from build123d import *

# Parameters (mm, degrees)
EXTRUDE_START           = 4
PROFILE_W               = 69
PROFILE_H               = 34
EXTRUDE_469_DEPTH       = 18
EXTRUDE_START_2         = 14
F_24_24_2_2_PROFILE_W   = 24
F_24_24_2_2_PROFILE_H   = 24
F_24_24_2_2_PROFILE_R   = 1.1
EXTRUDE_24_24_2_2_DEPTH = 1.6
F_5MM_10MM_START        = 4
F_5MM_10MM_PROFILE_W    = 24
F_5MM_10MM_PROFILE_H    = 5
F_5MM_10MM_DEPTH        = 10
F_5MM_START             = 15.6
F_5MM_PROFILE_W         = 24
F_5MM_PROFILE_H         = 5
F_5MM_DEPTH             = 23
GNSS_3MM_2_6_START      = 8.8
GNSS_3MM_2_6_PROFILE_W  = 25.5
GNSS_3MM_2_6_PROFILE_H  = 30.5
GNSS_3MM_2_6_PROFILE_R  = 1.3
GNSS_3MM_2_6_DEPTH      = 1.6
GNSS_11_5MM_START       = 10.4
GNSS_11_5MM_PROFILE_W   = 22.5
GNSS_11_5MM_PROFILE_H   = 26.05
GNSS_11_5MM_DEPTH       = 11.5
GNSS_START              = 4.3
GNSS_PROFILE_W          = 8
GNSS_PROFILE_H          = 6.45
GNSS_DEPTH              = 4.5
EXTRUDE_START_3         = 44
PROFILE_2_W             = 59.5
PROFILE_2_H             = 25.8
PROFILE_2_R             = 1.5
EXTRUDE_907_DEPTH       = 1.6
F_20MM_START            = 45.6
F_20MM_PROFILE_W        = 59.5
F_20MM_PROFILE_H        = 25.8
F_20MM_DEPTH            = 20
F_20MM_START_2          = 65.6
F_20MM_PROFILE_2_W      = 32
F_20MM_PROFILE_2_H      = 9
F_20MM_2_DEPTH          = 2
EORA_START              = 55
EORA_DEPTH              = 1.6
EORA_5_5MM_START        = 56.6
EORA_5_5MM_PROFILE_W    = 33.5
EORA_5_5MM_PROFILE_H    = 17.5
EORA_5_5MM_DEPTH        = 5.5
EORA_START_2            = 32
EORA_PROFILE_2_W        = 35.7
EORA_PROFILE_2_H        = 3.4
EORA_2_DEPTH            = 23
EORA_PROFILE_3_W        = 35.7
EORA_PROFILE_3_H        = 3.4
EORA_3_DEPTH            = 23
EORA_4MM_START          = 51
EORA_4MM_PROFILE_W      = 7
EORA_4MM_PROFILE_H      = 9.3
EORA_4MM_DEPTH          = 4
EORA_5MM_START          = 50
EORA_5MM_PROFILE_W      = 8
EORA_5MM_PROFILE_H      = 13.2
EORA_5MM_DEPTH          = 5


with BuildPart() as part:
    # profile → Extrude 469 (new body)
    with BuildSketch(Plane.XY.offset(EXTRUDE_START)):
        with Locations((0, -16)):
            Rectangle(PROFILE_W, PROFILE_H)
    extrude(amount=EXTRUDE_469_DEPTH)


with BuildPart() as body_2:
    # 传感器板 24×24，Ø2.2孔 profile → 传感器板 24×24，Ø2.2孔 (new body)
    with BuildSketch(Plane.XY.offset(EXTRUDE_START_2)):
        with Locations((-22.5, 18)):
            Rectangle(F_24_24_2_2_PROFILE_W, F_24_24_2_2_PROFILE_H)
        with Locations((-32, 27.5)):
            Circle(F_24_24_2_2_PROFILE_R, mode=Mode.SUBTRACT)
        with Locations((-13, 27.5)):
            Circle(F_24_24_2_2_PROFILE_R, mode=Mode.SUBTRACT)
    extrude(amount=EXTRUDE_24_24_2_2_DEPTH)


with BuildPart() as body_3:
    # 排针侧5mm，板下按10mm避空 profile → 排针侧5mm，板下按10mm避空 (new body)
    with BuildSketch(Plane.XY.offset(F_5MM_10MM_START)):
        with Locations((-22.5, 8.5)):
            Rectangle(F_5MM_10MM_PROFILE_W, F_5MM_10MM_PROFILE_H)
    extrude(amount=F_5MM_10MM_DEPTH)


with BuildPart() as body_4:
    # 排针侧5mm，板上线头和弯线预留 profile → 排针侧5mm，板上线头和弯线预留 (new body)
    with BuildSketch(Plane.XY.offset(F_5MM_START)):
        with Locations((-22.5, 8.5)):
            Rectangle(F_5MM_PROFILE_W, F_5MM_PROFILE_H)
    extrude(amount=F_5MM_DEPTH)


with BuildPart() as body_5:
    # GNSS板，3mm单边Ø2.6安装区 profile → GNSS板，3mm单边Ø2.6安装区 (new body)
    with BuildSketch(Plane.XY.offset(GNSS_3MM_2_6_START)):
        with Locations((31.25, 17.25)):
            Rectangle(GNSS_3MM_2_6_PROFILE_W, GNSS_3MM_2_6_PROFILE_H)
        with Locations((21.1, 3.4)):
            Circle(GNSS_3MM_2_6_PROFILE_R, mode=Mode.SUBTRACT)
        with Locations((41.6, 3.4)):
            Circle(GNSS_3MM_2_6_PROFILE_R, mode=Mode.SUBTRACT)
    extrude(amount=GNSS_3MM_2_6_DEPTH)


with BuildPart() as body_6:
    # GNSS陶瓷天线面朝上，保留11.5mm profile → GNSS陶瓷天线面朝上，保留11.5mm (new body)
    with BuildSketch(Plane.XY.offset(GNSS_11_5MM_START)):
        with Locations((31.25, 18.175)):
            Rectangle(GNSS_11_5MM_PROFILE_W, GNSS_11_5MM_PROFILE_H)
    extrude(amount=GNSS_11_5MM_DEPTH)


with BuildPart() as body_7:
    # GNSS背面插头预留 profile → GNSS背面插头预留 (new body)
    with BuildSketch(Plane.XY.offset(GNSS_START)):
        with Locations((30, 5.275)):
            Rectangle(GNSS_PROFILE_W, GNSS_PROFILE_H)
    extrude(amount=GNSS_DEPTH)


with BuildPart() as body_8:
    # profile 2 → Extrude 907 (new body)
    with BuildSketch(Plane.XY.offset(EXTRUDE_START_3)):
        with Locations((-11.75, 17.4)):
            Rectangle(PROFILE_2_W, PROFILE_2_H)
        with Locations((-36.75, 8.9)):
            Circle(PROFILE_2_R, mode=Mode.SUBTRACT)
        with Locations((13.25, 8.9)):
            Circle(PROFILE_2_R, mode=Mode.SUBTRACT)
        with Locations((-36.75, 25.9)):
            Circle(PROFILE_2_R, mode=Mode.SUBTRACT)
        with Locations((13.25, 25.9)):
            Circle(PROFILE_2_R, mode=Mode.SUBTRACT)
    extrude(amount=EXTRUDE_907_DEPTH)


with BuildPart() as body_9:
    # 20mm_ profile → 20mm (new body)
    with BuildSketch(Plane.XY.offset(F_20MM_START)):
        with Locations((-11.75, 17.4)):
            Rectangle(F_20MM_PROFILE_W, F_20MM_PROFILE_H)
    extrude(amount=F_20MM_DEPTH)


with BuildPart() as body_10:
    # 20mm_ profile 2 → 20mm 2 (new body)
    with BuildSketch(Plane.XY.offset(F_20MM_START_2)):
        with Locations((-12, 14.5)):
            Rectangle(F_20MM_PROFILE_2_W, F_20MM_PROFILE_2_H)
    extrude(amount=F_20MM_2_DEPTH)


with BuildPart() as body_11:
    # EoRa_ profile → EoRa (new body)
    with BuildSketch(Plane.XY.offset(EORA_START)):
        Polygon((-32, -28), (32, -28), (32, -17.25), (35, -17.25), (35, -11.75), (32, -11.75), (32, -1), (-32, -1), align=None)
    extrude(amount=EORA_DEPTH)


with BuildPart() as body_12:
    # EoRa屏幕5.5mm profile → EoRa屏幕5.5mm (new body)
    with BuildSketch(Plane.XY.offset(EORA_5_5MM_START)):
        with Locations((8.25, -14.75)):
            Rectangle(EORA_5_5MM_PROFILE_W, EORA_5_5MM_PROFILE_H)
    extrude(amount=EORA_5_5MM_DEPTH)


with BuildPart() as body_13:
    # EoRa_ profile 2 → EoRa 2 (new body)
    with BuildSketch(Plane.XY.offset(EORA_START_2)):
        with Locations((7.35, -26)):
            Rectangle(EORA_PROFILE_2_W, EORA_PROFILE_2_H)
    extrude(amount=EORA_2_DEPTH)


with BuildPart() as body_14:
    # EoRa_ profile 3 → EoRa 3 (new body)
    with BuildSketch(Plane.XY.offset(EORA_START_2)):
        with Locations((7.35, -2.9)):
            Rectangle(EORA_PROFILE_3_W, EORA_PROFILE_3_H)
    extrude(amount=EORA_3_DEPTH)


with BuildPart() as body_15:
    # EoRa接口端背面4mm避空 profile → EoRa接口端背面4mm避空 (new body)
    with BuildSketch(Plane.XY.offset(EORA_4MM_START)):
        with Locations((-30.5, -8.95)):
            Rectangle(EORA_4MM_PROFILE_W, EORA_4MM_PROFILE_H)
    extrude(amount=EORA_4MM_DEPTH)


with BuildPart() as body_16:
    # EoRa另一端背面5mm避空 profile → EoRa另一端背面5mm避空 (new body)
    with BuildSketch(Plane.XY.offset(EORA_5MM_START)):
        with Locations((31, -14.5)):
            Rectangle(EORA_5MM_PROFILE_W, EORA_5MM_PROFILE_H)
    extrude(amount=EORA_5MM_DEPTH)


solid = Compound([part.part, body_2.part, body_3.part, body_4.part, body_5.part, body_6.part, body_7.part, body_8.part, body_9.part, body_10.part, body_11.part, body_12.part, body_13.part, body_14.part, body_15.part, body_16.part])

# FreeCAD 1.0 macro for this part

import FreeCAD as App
import Part
import Sketcher

V = App.Vector


def add_polygon(sketch, points):
    """Adds a closed chain of lines whose ends are joined by coincident constraints."""
    first, n = sketch.GeometryCount, len(points)
    for a, b in zip(points, points[1:] + points[:1]):
        sketch.addGeometry(Part.LineSegment(App.Vector(*a, 0), App.Vector(*b, 0)), False)
    for i in range(n):
        sketch.addConstraint(Sketcher.Constraint("Coincident", first + i, 2, first + (i + 1) % n, 1))

doc = App.newDocument("Part")
body = doc.addObject("PartDesign::Body", "Body")

sketch1 = doc.addObject("Sketcher::SketchObject", "Sketch")
body.addObject(sketch1)
sketch1.AttachmentSupport = (doc.XY_Plane, [""])
sketch1.MapMode = "FlatFace"
sketch1.AttachmentOffset = App.Placement(V(0, 0, 4), App.Rotation())
add_polygon(sketch1, [(-34.5, 1), (-34.5, -33), (34.5, -33), (34.5, 1)])
sketch1.addConstraint([
    Sketcher.Constraint("Vertical", 0),
    Sketcher.Constraint("Horizontal", 1),
    Sketcher.Constraint("Vertical", 2),
    Sketcher.Constraint("Horizontal", 3),
    Sketcher.Constraint("DistanceX", 1, 1, 1, 2, 69.0),
    Sketcher.Constraint("DistanceY", 0, 2, 0, 1, 34.0),
    Sketcher.Constraint("DistanceY", 0, 2, -1, 1, 33.0),
    Sketcher.Constraint("DistanceX", 0, 2, -1, 1, 34.5),
])
pad1 = doc.addObject("PartDesign::Pad", "Pad")
body.addObject(pad1)
pad1.Profile = sketch1
pad1.Length = 18
body2 = doc.addObject("PartDesign::Body", "Body001")

sketch2 = doc.addObject("Sketcher::SketchObject", "Sketch001")
body2.addObject(sketch2)
sketch2.AttachmentSupport = (doc.getObject("XY_Plane001"), [""])
sketch2.MapMode = "FlatFace"
sketch2.AttachmentOffset = App.Placement(V(0, 0, 14), App.Rotation())
add_polygon(sketch2, [(-34.5, 30), (-34.5, 6), (-10.5, 6), (-10.5, 30)])
sketch2.addGeometry(Part.Circle(V(-32, 27.5, 0), V(0, 0, 1), 1.1), False)
sketch2.addGeometry(Part.Circle(V(-13, 27.5, 0), V(0, 0, 1), 1.1), False)
sketch2.addConstraint([
    Sketcher.Constraint("Vertical", 0),
    Sketcher.Constraint("Horizontal", 1),
    Sketcher.Constraint("Vertical", 2),
    Sketcher.Constraint("Horizontal", 3),
    Sketcher.Constraint("Equal", 4, 5),
    Sketcher.Constraint("Horizontal", 4, 3, 5, 3),
    Sketcher.Constraint("Equal", 3, 0),
    Sketcher.Constraint("Diameter", 4, 2.2),
    Sketcher.Constraint("DistanceX", 1, 1, 1, 2, 24.0),
    Sketcher.Constraint("DistanceX", 4, 3, -1, 1, 32.0),
    Sketcher.Constraint("DistanceX", 5, 3, -1, 1, 13.0),
    Sketcher.Constraint("DistanceY", -1, 1, 0, 2, 6.0),
    Sketcher.Constraint("DistanceY", -1, 1, 4, 3, 27.5),
    Sketcher.Constraint("DistanceX", 0, 2, -1, 1, 34.5),
])
pad2 = doc.addObject("PartDesign::Pad", "Pad001")
body2.addObject(pad2)
pad2.Profile = sketch2
pad2.Length = 1.6
body3 = doc.addObject("PartDesign::Body", "Body002")

sketch3 = doc.addObject("Sketcher::SketchObject", "Sketch002")
body3.addObject(sketch3)
sketch3.AttachmentSupport = (doc.getObject("XY_Plane002"), [""])
sketch3.MapMode = "FlatFace"
sketch3.AttachmentOffset = App.Placement(V(0, 0, 4), App.Rotation())
add_polygon(sketch3, [(-34.5, 11), (-34.5, 6), (-10.5, 6), (-10.5, 11)])
sketch3.addConstraint([
    Sketcher.Constraint("Vertical", 0),
    Sketcher.Constraint("Horizontal", 1),
    Sketcher.Constraint("Vertical", 2),
    Sketcher.Constraint("Horizontal", 3),
    Sketcher.Constraint("DistanceX", 1, 1, 1, 2, 24.0),
    Sketcher.Constraint("DistanceY", 0, 2, 0, 1, 5.0),
    Sketcher.Constraint("DistanceY", -1, 1, 0, 2, 6.0),
    Sketcher.Constraint("DistanceX", 0, 2, -1, 1, 34.5),
])
pad3 = doc.addObject("PartDesign::Pad", "Pad002")
body3.addObject(pad3)
pad3.Profile = sketch3
pad3.Length = 10
body4 = doc.addObject("PartDesign::Body", "Body003")

sketch4 = doc.addObject("Sketcher::SketchObject", "Sketch003")
body4.addObject(sketch4)
sketch4.AttachmentSupport = (doc.getObject("XY_Plane003"), [""])
sketch4.MapMode = "FlatFace"
sketch4.AttachmentOffset = App.Placement(V(0, 0, 15.6), App.Rotation())
add_polygon(sketch4, [(-34.5, 11), (-34.5, 6), (-10.5, 6), (-10.5, 11)])
sketch4.addConstraint([
    Sketcher.Constraint("Vertical", 0),
    Sketcher.Constraint("Horizontal", 1),
    Sketcher.Constraint("Vertical", 2),
    Sketcher.Constraint("Horizontal", 3),
    Sketcher.Constraint("DistanceX", 1, 1, 1, 2, 24.0),
    Sketcher.Constraint("DistanceY", 0, 2, 0, 1, 5.0),
    Sketcher.Constraint("DistanceY", -1, 1, 0, 2, 6.0),
    Sketcher.Constraint("DistanceX", 0, 2, -1, 1, 34.5),
])
pad4 = doc.addObject("PartDesign::Pad", "Pad003")
body4.addObject(pad4)
pad4.Profile = sketch4
pad4.Length = 23
body5 = doc.addObject("PartDesign::Body", "Body004")

sketch5 = doc.addObject("Sketcher::SketchObject", "Sketch004")
body5.addObject(sketch5)
sketch5.AttachmentSupport = (doc.getObject("XY_Plane004"), [""])
sketch5.MapMode = "FlatFace"
sketch5.AttachmentOffset = App.Placement(V(0, 0, 8.8), App.Rotation())
add_polygon(sketch5, [(18.5, 32.5), (18.5, 2), (44, 2), (44, 32.5)])
sketch5.addGeometry(Part.Circle(V(21.1, 3.4, 0), V(0, 0, 1), 1.3), False)
sketch5.addGeometry(Part.Circle(V(41.6, 3.4, 0), V(0, 0, 1), 1.3), False)
sketch5.addConstraint([
    Sketcher.Constraint("Vertical", 0),
    Sketcher.Constraint("Horizontal", 1),
    Sketcher.Constraint("Vertical", 2),
    Sketcher.Constraint("Horizontal", 3),
    Sketcher.Constraint("Equal", 4, 5),
    Sketcher.Constraint("Horizontal", 4, 3, 5, 3),
    Sketcher.Constraint("Diameter", 4, 2.6),
    Sketcher.Constraint("DistanceX", 1, 1, 1, 2, 25.5),
    Sketcher.Constraint("DistanceY", 0, 2, 0, 1, 30.5),
    Sketcher.Constraint("DistanceY", -1, 1, 0, 2, 2.0),
    Sketcher.Constraint("DistanceX", -1, 1, 1, 2, 44.0),
    Sketcher.Constraint("DistanceX", -1, 1, 4, 3, 21.1),
    Sketcher.Constraint("DistanceY", -1, 1, 4, 3, 3.4),
    Sketcher.Constraint("DistanceX", -1, 1, 5, 3, 41.6),
])
pad5 = doc.addObject("PartDesign::Pad", "Pad004")
body5.addObject(pad5)
pad5.Profile = sketch5
pad5.Length = 1.6
body6 = doc.addObject("PartDesign::Body", "Body005")

sketch6 = doc.addObject("Sketcher::SketchObject", "Sketch005")
body6.addObject(sketch6)
sketch6.AttachmentSupport = (doc.getObject("XY_Plane005"), [""])
sketch6.MapMode = "FlatFace"
sketch6.AttachmentOffset = App.Placement(V(0, 0, 10.4), App.Rotation())
add_polygon(sketch6, [(20, 31.2), (20, 5.15), (42.5, 5.15), (42.5, 31.2)])
sketch6.addConstraint([
    Sketcher.Constraint("Vertical", 0),
    Sketcher.Constraint("Horizontal", 1),
    Sketcher.Constraint("Vertical", 2),
    Sketcher.Constraint("Horizontal", 3),
    Sketcher.Constraint("DistanceX", 1, 1, 1, 2, 22.5),
    Sketcher.Constraint("DistanceX", -1, 1, 0, 2, 20.0),
    Sketcher.Constraint("DistanceY", 0, 2, 0, 1, 26.05),
    Sketcher.Constraint("DistanceY", -1, 1, 2, 2, 31.2),
])
pad6 = doc.addObject("PartDesign::Pad", "Pad005")
body6.addObject(pad6)
pad6.Profile = sketch6
pad6.Length = 11.5
body7 = doc.addObject("PartDesign::Body", "Body006")

sketch7 = doc.addObject("Sketcher::SketchObject", "Sketch006")
body7.addObject(sketch7)
sketch7.AttachmentSupport = (doc.getObject("XY_Plane006"), [""])
sketch7.MapMode = "FlatFace"
sketch7.AttachmentOffset = App.Placement(V(0, 0, 4.3), App.Rotation())
add_polygon(sketch7, [(26, 8.5), (26, 2.05), (34, 2.05), (34, 8.5)])
sketch7.addConstraint([
    Sketcher.Constraint("Vertical", 0),
    Sketcher.Constraint("Horizontal", 1),
    Sketcher.Constraint("Vertical", 2),
    Sketcher.Constraint("Horizontal", 3),
    Sketcher.Constraint("DistanceX", 1, 1, 1, 2, 8.0),
    Sketcher.Constraint("DistanceX", -1, 1, 0, 2, 26.0),
    Sketcher.Constraint("DistanceY", 0, 2, 0, 1, 6.45),
    Sketcher.Constraint("DistanceY", -1, 1, 2, 2, 8.5),
])
pad7 = doc.addObject("PartDesign::Pad", "Pad006")
body7.addObject(pad7)
pad7.Profile = sketch7
pad7.Length = 4.5
body8 = doc.addObject("PartDesign::Body", "Body007")

sketch8 = doc.addObject("Sketcher::SketchObject", "Sketch007")
body8.addObject(sketch8)
sketch8.AttachmentSupport = (doc.getObject("XY_Plane007"), [""])
sketch8.MapMode = "FlatFace"
sketch8.AttachmentOffset = App.Placement(V(0, 0, 44), App.Rotation())
add_polygon(sketch8, [(-41.5, 30.3), (-41.5, 4.5), (18, 4.5), (18, 30.3)])
sketch8.addGeometry(Part.Circle(V(-36.75, 8.9, 0), V(0, 0, 1), 1.5), False)
sketch8.addGeometry(Part.Circle(V(13.25, 8.9, 0), V(0, 0, 1), 1.5), False)
sketch8.addGeometry(Part.Circle(V(-36.75, 25.9, 0), V(0, 0, 1), 1.5), False)
sketch8.addGeometry(Part.Circle(V(13.25, 25.9, 0), V(0, 0, 1), 1.5), False)
sketch8.addConstraint([
    Sketcher.Constraint("Vertical", 0),
    Sketcher.Constraint("Horizontal", 1),
    Sketcher.Constraint("Vertical", 2),
    Sketcher.Constraint("Horizontal", 3),
    Sketcher.Constraint("Equal", 4, 5),
    Sketcher.Constraint("Equal", 5, 6),
    Sketcher.Constraint("Equal", 6, 7),
    Sketcher.Constraint("Horizontal", 4, 3, 5, 3),
    Sketcher.Constraint("Horizontal", 6, 3, 7, 3),
    Sketcher.Constraint("Vertical", 4, 3, 6, 3),
    Sketcher.Constraint("Vertical", 5, 3, 7, 3),
    Sketcher.Constraint("Diameter", 4, 3.0),
    Sketcher.Constraint("DistanceX", 1, 1, 1, 2, 59.5),
    Sketcher.Constraint("DistanceY", 0, 2, 0, 1, 25.8),
    Sketcher.Constraint("DistanceX", -1, 1, 1, 2, 18.0),
    Sketcher.Constraint("DistanceX", 4, 3, 5, 3, 50.0),
    Sketcher.Constraint("DistanceY", 4, 3, 6, 3, 17.0),
    Sketcher.Constraint("DistanceY", -1, 1, 4, 3, 8.9),
    Sketcher.Constraint("DistanceY", -1, 1, 0, 2, 4.5),
    Sketcher.Constraint("DistanceX", 4, 3, -1, 1, 36.75),
])
pad8 = doc.addObject("PartDesign::Pad", "Pad007")
body8.addObject(pad8)
pad8.Profile = sketch8
pad8.Length = 1.6
body9 = doc.addObject("PartDesign::Body", "Body008")

sketch9 = doc.addObject("Sketcher::SketchObject", "Sketch008")
body9.addObject(sketch9)
sketch9.AttachmentSupport = (doc.getObject("XY_Plane008"), [""])
sketch9.MapMode = "FlatFace"
sketch9.AttachmentOffset = App.Placement(V(0, 0, 45.6), App.Rotation())
add_polygon(sketch9, [(-41.5, 30.3), (-41.5, 4.5), (18, 4.5), (18, 30.3)])
sketch9.addConstraint([
    Sketcher.Constraint("Vertical", 0),
    Sketcher.Constraint("Horizontal", 1),
    Sketcher.Constraint("Vertical", 2),
    Sketcher.Constraint("Horizontal", 3),
    Sketcher.Constraint("DistanceX", 1, 1, 1, 2, 59.5),
    Sketcher.Constraint("DistanceY", 0, 2, 0, 1, 25.8),
    Sketcher.Constraint("DistanceX", -1, 1, 1, 2, 18.0),
    Sketcher.Constraint("DistanceY", -1, 1, 0, 2, 4.5),
])
pad9 = doc.addObject("PartDesign::Pad", "Pad008")
body9.addObject(pad9)
pad9.Profile = sketch9
pad9.Length = 20
body10 = doc.addObject("PartDesign::Body", "Body009")

sketch10 = doc.addObject("Sketcher::SketchObject", "Sketch009")
body10.addObject(sketch10)
sketch10.AttachmentSupport = (doc.getObject("XY_Plane009"), [""])
sketch10.MapMode = "FlatFace"
sketch10.AttachmentOffset = App.Placement(V(0, 0, 65.6), App.Rotation())
add_polygon(sketch10, [(-28, 19), (-28, 10), (4, 10), (4, 19)])
sketch10.addConstraint([
    Sketcher.Constraint("Vertical", 0),
    Sketcher.Constraint("Horizontal", 1),
    Sketcher.Constraint("Vertical", 2),
    Sketcher.Constraint("Horizontal", 3),
    Sketcher.Constraint("DistanceX", 1, 1, 1, 2, 32.0),
    Sketcher.Constraint("DistanceY", 0, 2, 0, 1, 9.0),
    Sketcher.Constraint("DistanceX", 0, 2, -1, 1, 28.0),
    Sketcher.Constraint("DistanceY", -1, 1, 0, 2, 10.0),
])
pad10 = doc.addObject("PartDesign::Pad", "Pad009")
body10.addObject(pad10)
pad10.Profile = sketch10
pad10.Length = 2
body11 = doc.addObject("PartDesign::Body", "Body010")

sketch11 = doc.addObject("Sketcher::SketchObject", "Sketch010")
body11.addObject(sketch11)
sketch11.AttachmentSupport = (doc.getObject("XY_Plane010"), [""])
sketch11.MapMode = "FlatFace"
sketch11.AttachmentOffset = App.Placement(V(0, 0, 55), App.Rotation())
add_polygon(sketch11, [(-32, -28), (32, -28), (32, -17.25), (35, -17.25), (35, -11.75), (32, -11.75), (32, -1), (-32, -1)])
sketch11.addConstraint([
    Sketcher.Constraint("Horizontal", 0),
    Sketcher.Constraint("Vertical", 1),
    Sketcher.Constraint("Horizontal", 2),
    Sketcher.Constraint("Vertical", 3),
    Sketcher.Constraint("Horizontal", 4),
    Sketcher.Constraint("Vertical", 5),
    Sketcher.Constraint("Horizontal", 6),
    Sketcher.Constraint("Vertical", 7),
    Sketcher.Constraint("Vertical", 1, 2, 4, 2),
    Sketcher.Constraint("Equal", 1, 5),
    Sketcher.Constraint("DistanceX", 0, 1, 0, 2, 64.0),
    Sketcher.Constraint("DistanceX", 2, 1, 2, 2, 3.0),
    Sketcher.Constraint("DistanceY", 7, 2, 7, 1, 27.0),
    Sketcher.Constraint("DistanceY", 3, 1, 3, 2, 5.5),
    Sketcher.Constraint("DistanceX", -1, 1, 0, 2, 32.0),
    Sketcher.Constraint("DistanceY", 0, 2, -1, 1, 28.0),
])
pad11 = doc.addObject("PartDesign::Pad", "Pad010")
body11.addObject(pad11)
pad11.Profile = sketch11
pad11.Length = 1.6
body12 = doc.addObject("PartDesign::Body", "Body011")

sketch12 = doc.addObject("Sketcher::SketchObject", "Sketch011")
body12.addObject(sketch12)
sketch12.AttachmentSupport = (doc.getObject("XY_Plane011"), [""])
sketch12.MapMode = "FlatFace"
sketch12.AttachmentOffset = App.Placement(V(0, 0, 56.6), App.Rotation())
add_polygon(sketch12, [(-8.5, -6), (-8.5, -23.5), (25, -23.5), (25, -6)])
sketch12.addConstraint([
    Sketcher.Constraint("Vertical", 0),
    Sketcher.Constraint("Horizontal", 1),
    Sketcher.Constraint("Vertical", 2),
    Sketcher.Constraint("Horizontal", 3),
    Sketcher.Constraint("DistanceX", 1, 1, 1, 2, 33.5),
    Sketcher.Constraint("DistanceY", 0, 2, 0, 1, 17.5),
    Sketcher.Constraint("DistanceX", -1, 1, 1, 2, 25.0),
    Sketcher.Constraint("DistanceY", 2, 2, -1, 1, 6.0),
])
pad12 = doc.addObject("PartDesign::Pad", "Pad011")
body12.addObject(pad12)
pad12.Profile = sketch12
pad12.Length = 5.5
body13 = doc.addObject("PartDesign::Body", "Body012")

sketch13 = doc.addObject("Sketcher::SketchObject", "Sketch012")
body13.addObject(sketch13)
sketch13.AttachmentSupport = (doc.getObject("XY_Plane012"), [""])
sketch13.MapMode = "FlatFace"
sketch13.AttachmentOffset = App.Placement(V(0, 0, 32), App.Rotation())
add_polygon(sketch13, [(-10.5, -24.3), (-10.5, -27.7), (25.2, -27.7), (25.2, -24.3)])
sketch13.addConstraint([
    Sketcher.Constraint("Vertical", 0),
    Sketcher.Constraint("Horizontal", 1),
    Sketcher.Constraint("Vertical", 2),
    Sketcher.Constraint("Horizontal", 3),
    Sketcher.Constraint("DistanceX", 1, 1, 1, 2, 35.7),
    Sketcher.Constraint("DistanceY", 0, 2, 0, 1, 3.4),
    Sketcher.Constraint("DistanceX", 0, 2, -1, 1, 10.5),
    Sketcher.Constraint("DistanceY", 0, 2, -1, 1, 27.7),
])
pad13 = doc.addObject("PartDesign::Pad", "Pad012")
body13.addObject(pad13)
pad13.Profile = sketch13
pad13.Length = 23
body14 = doc.addObject("PartDesign::Body", "Body013")

sketch14 = doc.addObject("Sketcher::SketchObject", "Sketch013")
body14.addObject(sketch14)
sketch14.AttachmentSupport = (doc.getObject("XY_Plane013"), [""])
sketch14.MapMode = "FlatFace"
sketch14.AttachmentOffset = App.Placement(V(0, 0, 32), App.Rotation())
add_polygon(sketch14, [(-10.5, -1.2), (-10.5, -4.6), (25.2, -4.6), (25.2, -1.2)])
sketch14.addConstraint([
    Sketcher.Constraint("Vertical", 0),
    Sketcher.Constraint("Horizontal", 1),
    Sketcher.Constraint("Vertical", 2),
    Sketcher.Constraint("Horizontal", 3),
    Sketcher.Constraint("DistanceX", 1, 1, 1, 2, 35.7),
    Sketcher.Constraint("DistanceY", 0, 2, 0, 1, 3.4),
    Sketcher.Constraint("DistanceX", 0, 2, -1, 1, 10.5),
    Sketcher.Constraint("DistanceY", 0, 2, -1, 1, 4.6),
])
pad14 = doc.addObject("PartDesign::Pad", "Pad013")
body14.addObject(pad14)
pad14.Profile = sketch14
pad14.Length = 23
body15 = doc.addObject("PartDesign::Body", "Body014")

sketch15 = doc.addObject("Sketcher::SketchObject", "Sketch014")
body15.addObject(sketch15)
sketch15.AttachmentSupport = (doc.getObject("XY_Plane014"), [""])
sketch15.MapMode = "FlatFace"
sketch15.AttachmentOffset = App.Placement(V(0, 0, 51), App.Rotation())
add_polygon(sketch15, [(-34, -4.3), (-34, -13.6), (-27, -13.6), (-27, -4.3)])
sketch15.addConstraint([
    Sketcher.Constraint("Vertical", 0),
    Sketcher.Constraint("Horizontal", 1),
    Sketcher.Constraint("Vertical", 2),
    Sketcher.Constraint("Horizontal", 3),
    Sketcher.Constraint("DistanceX", 1, 1, 1, 2, 7.0),
    Sketcher.Constraint("DistanceY", 0, 2, 0, 1, 9.3),
    Sketcher.Constraint("DistanceX", 0, 2, -1, 1, 34.0),
    Sketcher.Constraint("DistanceY", 0, 2, -1, 1, 13.6),
])
pad15 = doc.addObject("PartDesign::Pad", "Pad014")
body15.addObject(pad15)
pad15.Profile = sketch15
pad15.Length = 4
body16 = doc.addObject("PartDesign::Body", "Body015")

sketch16 = doc.addObject("Sketcher::SketchObject", "Sketch015")
body16.addObject(sketch16)
sketch16.AttachmentSupport = (doc.getObject("XY_Plane015"), [""])
sketch16.MapMode = "FlatFace"
sketch16.AttachmentOffset = App.Placement(V(0, 0, 50), App.Rotation())
add_polygon(sketch16, [(27, -7.9), (27, -21.1), (35, -21.1), (35, -7.9)])
sketch16.addConstraint([
    Sketcher.Constraint("Vertical", 0),
    Sketcher.Constraint("Horizontal", 1),
    Sketcher.Constraint("Vertical", 2),
    Sketcher.Constraint("Horizontal", 3),
    Sketcher.Constraint("DistanceX", 1, 1, 1, 2, 8.0),
    Sketcher.Constraint("DistanceY", 0, 2, 0, 1, 13.2),
    Sketcher.Constraint("DistanceX", -1, 1, 0, 2, 27.0),
    Sketcher.Constraint("DistanceY", 0, 2, -1, 1, 21.1),
])
pad16 = doc.addObject("PartDesign::Pad", "Pad015")
body16.addObject(pad16)
pad16.Profile = sketch16
pad16.Length = 5

doc.recompute()
